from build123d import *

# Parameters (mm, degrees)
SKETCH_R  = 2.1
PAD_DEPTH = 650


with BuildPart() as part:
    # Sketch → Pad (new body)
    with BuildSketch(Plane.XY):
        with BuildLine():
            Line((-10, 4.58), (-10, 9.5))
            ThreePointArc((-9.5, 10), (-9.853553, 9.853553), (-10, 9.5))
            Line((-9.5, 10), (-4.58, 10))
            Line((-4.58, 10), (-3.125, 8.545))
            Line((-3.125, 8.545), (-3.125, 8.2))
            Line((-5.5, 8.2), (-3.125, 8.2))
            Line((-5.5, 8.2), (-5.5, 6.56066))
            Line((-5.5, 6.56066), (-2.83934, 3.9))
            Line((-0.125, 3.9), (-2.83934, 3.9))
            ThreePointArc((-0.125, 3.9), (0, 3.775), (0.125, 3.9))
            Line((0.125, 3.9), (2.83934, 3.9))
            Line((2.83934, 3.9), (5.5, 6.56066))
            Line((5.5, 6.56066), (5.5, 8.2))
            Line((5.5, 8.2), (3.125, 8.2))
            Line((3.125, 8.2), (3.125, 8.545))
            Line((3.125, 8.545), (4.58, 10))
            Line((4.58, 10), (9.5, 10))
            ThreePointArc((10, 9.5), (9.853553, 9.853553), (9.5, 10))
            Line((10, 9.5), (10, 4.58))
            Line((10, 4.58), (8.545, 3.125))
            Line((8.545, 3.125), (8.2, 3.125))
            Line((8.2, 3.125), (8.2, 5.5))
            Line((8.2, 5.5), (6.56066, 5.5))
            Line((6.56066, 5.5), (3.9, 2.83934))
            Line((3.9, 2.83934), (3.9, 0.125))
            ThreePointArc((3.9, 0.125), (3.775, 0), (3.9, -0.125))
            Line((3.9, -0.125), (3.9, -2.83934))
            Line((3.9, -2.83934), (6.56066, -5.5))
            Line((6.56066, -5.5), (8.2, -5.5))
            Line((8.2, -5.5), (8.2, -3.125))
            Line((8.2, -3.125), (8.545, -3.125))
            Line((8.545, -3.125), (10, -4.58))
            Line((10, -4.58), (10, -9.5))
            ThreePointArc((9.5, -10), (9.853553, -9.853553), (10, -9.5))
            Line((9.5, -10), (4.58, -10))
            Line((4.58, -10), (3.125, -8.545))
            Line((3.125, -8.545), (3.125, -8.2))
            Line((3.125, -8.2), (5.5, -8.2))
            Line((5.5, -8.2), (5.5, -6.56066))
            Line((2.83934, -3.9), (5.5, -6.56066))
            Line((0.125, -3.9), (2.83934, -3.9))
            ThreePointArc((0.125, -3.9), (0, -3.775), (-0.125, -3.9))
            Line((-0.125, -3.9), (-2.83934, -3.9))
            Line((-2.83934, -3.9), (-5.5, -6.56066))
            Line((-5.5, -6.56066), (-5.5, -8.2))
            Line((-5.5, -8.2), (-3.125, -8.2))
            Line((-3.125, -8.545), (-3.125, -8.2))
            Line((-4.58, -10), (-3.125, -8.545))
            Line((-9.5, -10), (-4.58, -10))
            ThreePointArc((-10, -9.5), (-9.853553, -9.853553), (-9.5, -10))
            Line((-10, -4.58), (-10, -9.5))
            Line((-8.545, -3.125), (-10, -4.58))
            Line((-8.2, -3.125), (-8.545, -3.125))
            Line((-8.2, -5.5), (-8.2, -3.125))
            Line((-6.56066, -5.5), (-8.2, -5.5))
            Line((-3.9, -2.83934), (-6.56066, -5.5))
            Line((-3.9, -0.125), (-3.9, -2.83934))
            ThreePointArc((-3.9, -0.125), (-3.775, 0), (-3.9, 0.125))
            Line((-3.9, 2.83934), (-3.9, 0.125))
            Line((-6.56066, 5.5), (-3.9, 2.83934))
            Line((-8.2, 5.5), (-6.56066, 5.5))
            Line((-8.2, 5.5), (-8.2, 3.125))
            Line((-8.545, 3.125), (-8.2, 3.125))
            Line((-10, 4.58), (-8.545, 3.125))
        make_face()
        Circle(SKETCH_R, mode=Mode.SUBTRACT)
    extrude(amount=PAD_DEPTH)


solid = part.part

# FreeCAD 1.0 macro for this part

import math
import FreeCAD as App
import Part
import Sketcher

V = App.Vector

doc = App.newDocument("Part")
body = doc.addObject("PartDesign::Body", "Body")

# Sketch on XY plane
sketch1 = body.newObject("Sketcher::SketchObject", "Sketch")
sketch1.AttachmentSupport = (doc.getObject("XY_Plane"), [""])
sketch1.MapMode = "FlatFace"
sketch1.addGeometry(Part.LineSegment(V(-10, 9.5, 0), V(-10, 4.58, 0)), False)
sketch1.addGeometry(Part.LineSegment(V(-10, 4.58, 0), V(-8.54, 3.12, 0)), False)
sketch1.addGeometry(Part.LineSegment(V(-8.54, 3.12, 0), V(-8.2, 3.12, 0)), False)
sketch1.addGeometry(Part.LineSegment(V(-8.2, 3.12, 0), V(-8.2, 5.5, 0)), False)
sketch1.addGeometry(Part.LineSegment(V(-8.2, 5.5, 0), V(-6.56, 5.5, 0)), False)
sketch1.addGeometry(Part.LineSegment(V(-6.56, 5.5, 0), V(-3.9, 2.84, 0)), False)
sketch1.addGeometry(Part.LineSegment(V(-3.9, 2.84, 0), V(-3.9, 0.12, 0)), False)
sketch1.addGeometry(Part.ArcOfCircle(Part.Circle(V(-3.9, 0, 0), V(0, 0, 1), 0.12), math.radians(-90), math.radians(90)), False)
sketch1.addGeometry(Part.LineSegment(V(-3.9, -0.12, 0), V(-3.9, -2.84, 0)), False)
sketch1.addGeometry(Part.LineSegment(V(-3.9, -2.84, 0), V(-6.56, -5.5, 0)), False)
sketch1.addGeometry(Part.LineSegment(V(-6.56, -5.5, 0), V(-8.2, -5.5, 0)), False)
sketch1.addGeometry(Part.LineSegment(V(-8.2, -5.5, 0), V(-8.2, -3.12, 0)), False)
sketch1.addGeometry(Part.LineSegment(V(-8.2, -3.12, 0), V(-8.54, -3.12, 0)), False)
sketch1.addGeometry(Part.LineSegment(V(-8.54, -3.12, 0), V(-10, -4.58, 0)), False)
sketch1.addGeometry(Part.LineSegment(V(-10, -4.58, 0), V(-10, -9.5, 0)), False)
sketch1.addGeometry(Part.ArcOfCircle(Part.Circle(V(-9.5, -9.5, 0), V(0, 0, 1), 0.5), math.radians(-180), math.radians(-90)), False)
sketch1.addGeometry(Part.LineSegment(V(-9.5, -10, 0), V(-4.58, -10, 0)), False)
sketch1.addGeometry(Part.LineSegment(V(-4.58, -10, 0), V(-3.12, -8.54, 0)), False)
sketch1.addGeometry(Part.LineSegment(V(-3.12, -8.54, 0), V(-3.12, -8.2, 0)), False)
sketch1.addGeometry(Part.LineSegment(V(-3.12, -8.2, 0), V(-5.5, -8.2, 0)), False)
sketch1.addGeometry(Part.LineSegment(V(-5.5, -8.2, 0), V(-5.5, -6.56, 0)), False)
sketch1.addGeometry(Part.LineSegment(V(-5.5, -6.56, 0), V(-2.84, -3.9, 0)), False)
sketch1.addGeometry(Part.LineSegment(V(-2.84, -3.9, 0), V(-0.12, -3.9, 0)), False)
sketch1.addGeometry(Part.ArcOfCircle(Part.Circle(V(0, -3.9, 0), V(0, 0, 1), 0.12), math.radians(0), math.radians(180)), False)
sketch1.addGeometry(Part.LineSegment(V(0.12, -3.9, 0), V(2.84, -3.9, 0)), False)
sketch1.addGeometry(Part.LineSegment(V(2.84, -3.9, 0), V(5.5, -6.56, 0)), False)
sketch1.addGeometry(Part.LineSegment(V(5.5, -6.56, 0), V(5.5, -8.2, 0)), False)
sketch1.addGeometry(Part.LineSegment(V(5.5, -8.2, 0), V(3.12, -8.2, 0)), False)
sketch1.addGeometry(Part.LineSegment(V(3.12, -8.2, 0), V(3.12, -8.54, 0)), False)
sketch1.addGeometry(Part.LineSegment(V(3.12, -8.54, 0), V(4.58, -10, 0)), False)
sketch1.addGeometry(Part.LineSegment(V(4.58, -10, 0), V(9.5, -10, 0)), False)
sketch1.addGeometry(Part.ArcOfCircle(Part.Circle(V(9.5, -9.5, 0), V(0, 0, 1), 0.5), math.radians(-90), math.radians(0)), False)
sketch1.addGeometry(Part.LineSegment(V(10, -9.5, 0), V(10, -4.58, 0)), False)
sketch1.addGeometry(Part.LineSegment(V(10, -4.58, 0), V(8.54, -3.12, 0)), False)
sketch1.addGeometry(Part.LineSegment(V(8.54, -3.12, 0), V(8.2, -3.12, 0)), False)
sketch1.addGeometry(Part.LineSegment(V(8.2, -3.12, 0), V(8.2, -5.5, 0)), False)
sketch1.addGeometry(Part.LineSegment(V(8.2, -5.5, 0), V(6.56, -5.5, 0)), False)
sketch1.addGeometry(Part.LineSegment(V(6.56, -5.5, 0), V(3.9, -2.84, 0)), False)
sketch1.addGeometry(Part.LineSegment(V(3.9, -2.84, 0), V(3.9, -0.12, 0)), False)
sketch1.addGeometry(Part.ArcOfCircle(Part.Circle(V(3.9, 0, 0), V(0, 0, 1), 0.12), math.radians(90), math.radians(270)), False)
sketch1.addGeometry(Part.LineSegment(V(3.9, 0.12, 0), V(3.9, 2.84, 0)), False)
sketch1.addGeometry(Part.LineSegment(V(3.9, 2.84, 0), V(6.56, 5.5, 0)), False)
sketch1.addGeometry(Part.LineSegment(V(6.56, 5.5, 0), V(8.2, 5.5, 0)), False)
sketch1.addGeometry(Part.LineSegment(V(8.2, 5.5, 0), V(8.2, 3.12, 0)), False)
sketch1.addGeometry(Part.LineSegment(V(8.2, 3.12, 0), V(8.54, 3.12, 0)), False)
sketch1.addGeometry(Part.LineSegment(V(8.54, 3.12, 0), V(10, 4.58, 0)), False)
sketch1.addGeometry(Part.LineSegment(V(10, 4.58, 0), V(10, 9.5, 0)), False)
sketch1.addGeometry(Part.ArcOfCircle(Part.Circle(V(9.5, 9.5, 0), V(0, 0, 1), 0.5), math.radians(0), math.radians(90)), False)
sketch1.addGeometry(Part.LineSegment(V(9.5, 10, 0), V(4.58, 10, 0)), False)
sketch1.addGeometry(Part.LineSegment(V(4.58, 10, 0), V(3.12, 8.54, 0)), False)
sketch1.addGeometry(Part.LineSegment(V(3.12, 8.54, 0), V(3.12, 8.2, 0)), False)
sketch1.addGeometry(Part.LineSegment(V(3.12, 8.2, 0), V(5.5, 8.2, 0)), False)
sketch1.addGeometry(Part.LineSegment(V(5.5, 8.2, 0), V(5.5, 6.56, 0)), False)
sketch1.addGeometry(Part.LineSegment(V(5.5, 6.56, 0), V(2.84, 3.9, 0)), False)
sketch1.addGeometry(Part.LineSegment(V(2.84, 3.9, 0), V(0.12, 3.9, 0)), False)
sketch1.addGeometry(Part.ArcOfCircle(Part.Circle(V(0, 3.9, 0), V(0, 0, 1), 0.12), math.radians(180), math.radians(360)), False)
sketch1.addGeometry(Part.LineSegment(V(-0.12, 3.9, 0), V(-2.84, 3.9, 0)), False)
sketch1.addGeometry(Part.LineSegment(V(-2.84, 3.9, 0), V(-5.5, 6.56, 0)), False)
sketch1.addGeometry(Part.LineSegment(V(-5.5, 6.56, 0), V(-5.5, 8.2, 0)), False)
sketch1.addGeometry(Part.LineSegment(V(-5.5, 8.2, 0), V(-3.12, 8.2, 0)), False)
sketch1.addGeometry(Part.LineSegment(V(-3.12, 8.2, 0), V(-3.12, 8.54, 0)), False)
sketch1.addGeometry(Part.LineSegment(V(-3.12, 8.54, 0), V(-4.58, 10, 0)), False)
sketch1.addGeometry(Part.LineSegment(V(-4.58, 10, 0), V(-9.5, 10, 0)), False)
sketch1.addGeometry(Part.ArcOfCircle(Part.Circle(V(-9.5, 9.5, 0), V(0, 0, 1), 0.5), math.radians(90), math.radians(180)), False)
sketch1.addGeometry(Part.Circle(V(0, 0, 0), V(0, 0, 1), 2.1), False)
sketch1.addConstraint(Sketcher.Constraint("Coincident", 0, 2, 1, 1))
sketch1.addConstraint(Sketcher.Constraint("Coincident", 1, 2, 2, 1))
sketch1.addConstraint(Sketcher.Constraint("Coincident", 2, 2, 3, 1))
sketch1.addConstraint(Sketcher.Constraint("Coincident", 3, 2, 4, 1))
sketch1.addConstraint(Sketcher.Constraint("Coincident", 4, 2, 5, 1))
sketch1.addConstraint(Sketcher.Constraint("Coincident", 5, 2, 6, 1))
sketch1.addConstraint(Sketcher.Constraint("Coincident", 6, 2, 7, 2))
sketch1.addConstraint(Sketcher.Constraint("Coincident", 7, 1, 8, 1))
sketch1.addConstraint(Sketcher.Constraint("Coincident", 8, 2, 9, 1))
sketch1.addConstraint(Sketcher.Constraint("Coincident", 9, 2, 10, 1))
sketch1.addConstraint(Sketcher.Constraint("Coincident", 10, 2, 11, 1))
sketch1.addConstraint(Sketcher.Constraint("Coincident", 11, 2, 12, 1))
sketch1.addConstraint(Sketcher.Constraint("Coincident", 12, 2, 13, 1))
sketch1.addConstraint(Sketcher.Constraint("Coincident", 13, 2, 14, 1))
sketch1.addConstraint(Sketcher.Constraint("Coincident", 14, 2, 15, 1))
sketch1.addConstraint(Sketcher.Constraint("Coincident", 15, 2, 16, 1))
sketch1.addConstraint(Sketcher.Constraint("Coincident", 16, 2, 17, 1))
sketch1.addConstraint(Sketcher.Constraint("Coincident", 17, 2, 18, 1))
sketch1.addConstraint(Sketcher.Constraint("Coincident", 18, 2, 19, 1))
sketch1.addConstraint(Sketcher.Constraint("Coincident", 19, 2, 20, 1))
sketch1.addConstraint(Sketcher.Constraint("Coincident", 20, 2, 21, 1))
sketch1.addConstraint(Sketcher.Constraint("Coincident", 21, 2, 22, 1))
sketch1.addConstraint(Sketcher.Constraint("Coincident", 22, 2, 23, 2))
sketch1.addConstraint(Sketcher.Constraint("Coincident", 23, 1, 24, 1))
sketch1.addConstraint(Sketcher.Constraint("Coincident", 24, 2, 25, 1))
sketch1.addConstraint(Sketcher.Constraint("Coincident", 25, 2, 26, 1))
sketch1.addConstraint(Sketcher.Constraint("Coincident", 26, 2, 27, 1))
sketch1.addConstraint(Sketcher.Constraint("Coincident", 27, 2, 28, 1))
sketch1.addConstraint(Sketcher.Constraint("Coincident", 28, 2, 29, 1))
sketch1.addConstraint(Sketcher.Constraint("Coincident", 29, 2, 30, 1))
sketch1.addConstraint(Sketcher.Constraint("Coincident", 30, 2, 31, 1))
sketch1.addConstraint(Sketcher.Constraint("Coincident", 31, 2, 32, 1))
sketch1.addConstraint(Sketcher.Constraint("Coincident", 32, 2, 33, 1))
sketch1.addConstraint(Sketcher.Constraint("Coincident", 33, 2, 34, 1))
sketch1.addConstraint(Sketcher.Constraint("Coincident", 34, 2, 35, 1))
sketch1.addConstraint(Sketcher.Constraint("Coincident", 35, 2, 36, 1))
sketch1.addConstraint(Sketcher.Constraint("Coincident", 36, 2, 37, 1))
sketch1.addConstraint(Sketcher.Constraint("Coincident", 37, 2, 38, 1))
sketch1.addConstraint(Sketcher.Constraint("Coincident", 38, 2, 39, 2))
sketch1.addConstraint(Sketcher.Constraint("Coincident", 39, 1, 40, 1))
sketch1.addConstraint(Sketcher.Constraint("Coincident", 40, 2, 41, 1))
sketch1.addConstraint(Sketcher.Constraint("Coincident", 41, 2, 42, 1))
sketch1.addConstraint(Sketcher.Constraint("Coincident", 42, 2, 43, 1))
sketch1.addConstraint(Sketcher.Constraint("Coincident", 43, 2, 44, 1))
sketch1.addConstraint(Sketcher.Constraint("Coincident", 44, 2, 45, 1))
sketch1.addConstraint(Sketcher.Constraint("Coincident", 45, 2, 46, 1))
sketch1.addConstraint(Sketcher.Constraint("Coincident", 46, 2, 47, 1))
sketch1.addConstraint(Sketcher.Constraint("Coincident", 47, 2, 48, 1))
sketch1.addConstraint(Sketcher.Constraint("Coincident", 48, 2, 49, 1))
sketch1.addConstraint(Sketcher.Constraint("Coincident", 49, 2, 50, 1))
sketch1.addConstraint(Sketcher.Constraint("Coincident", 50, 2, 51, 1))
sketch1.addConstraint(Sketcher.Constraint("Coincident", 51, 2, 52, 1))
sketch1.addConstraint(Sketcher.Constraint("Coincident", 52, 2, 53, 1))
sketch1.addConstraint(Sketcher.Constraint("Coincident", 53, 2, 54, 1))
sketch1.addConstraint(Sketcher.Constraint("Coincident", 54, 2, 55, 2))
sketch1.addConstraint(Sketcher.Constraint("Coincident", 55, 1, 56, 1))
sketch1.addConstraint(Sketcher.Constraint("Coincident", 56, 2, 57, 1))
sketch1.addConstraint(Sketcher.Constraint("Coincident", 57, 2, 58, 1))
sketch1.addConstraint(Sketcher.Constraint("Coincident", 58, 2, 59, 1))
sketch1.addConstraint(Sketcher.Constraint("Coincident", 59, 2, 60, 1))
sketch1.addConstraint(Sketcher.Constraint("Coincident", 60, 2, 61, 1))
sketch1.addConstraint(Sketcher.Constraint("Coincident", 61, 2, 62, 1))
sketch1.addConstraint(Sketcher.Constraint("Coincident", 62, 2, 63, 1))
sketch1.addConstraint(Sketcher.Constraint("Coincident", 63, 2, 0, 1))
sketch1.addConstraint(Sketcher.Constraint("Vertical", 0))
sketch1.addConstraint(Sketcher.Constraint("Horizontal", 2))
sketch1.addConstraint(Sketcher.Constraint("Vertical", 3))
sketch1.addConstraint(Sketcher.Constraint("Horizontal", 4))
sketch1.addConstraint(Sketcher.Constraint("Vertical", 6))
sketch1.addConstraint(Sketcher.Constraint("Vertical", 8))
sketch1.addConstraint(Sketcher.Constraint("Horizontal", 10))
sketch1.addConstraint(Sketcher.Constraint("Vertical", 11))
sketch1.addConstraint(Sketcher.Constraint("Horizontal", 12))
sketch1.addConstraint(Sketcher.Constraint("Vertical", 14))
sketch1.addConstraint(Sketcher.Constraint("Horizontal", 16))
sketch1.addConstraint(Sketcher.Constraint("Vertical", 18))
sketch1.addConstraint(Sketcher.Constraint("Horizontal", 19))
sketch1.addConstraint(Sketcher.Constraint("Vertical", 20))
sketch1.addConstraint(Sketcher.Constraint("Horizontal", 22))
sketch1.addConstraint(Sketcher.Constraint("Horizontal", 24))
sketch1.addConstraint(Sketcher.Constraint("Vertical", 26))
sketch1.addConstraint(Sketcher.Constraint("Horizontal", 27))
sketch1.addConstraint(Sketcher.Constraint("Vertical", 28))
sketch1.addConstraint(Sketcher.Constraint("Horizontal", 30))
sketch1.addConstraint(Sketcher.Constraint("Vertical", 32))
sketch1.addConstraint(Sketcher.Constraint("Horizontal", 34))
sketch1.addConstraint(Sketcher.Constraint("Vertical", 35))
sketch1.addConstraint(Sketcher.Constraint("Horizontal", 36))
sketch1.addConstraint(Sketcher.Constraint("Vertical", 38))
sketch1.addConstraint(Sketcher.Constraint("Vertical", 40))
sketch1.addConstraint(Sketcher.Constraint("Horizontal", 42))
sketch1.addConstraint(Sketcher.Constraint("Vertical", 43))
sketch1.addConstraint(Sketcher.Constraint("Horizontal", 44))
sketch1.addConstraint(Sketcher.Constraint("Vertical", 46))
sketch1.addConstraint(Sketcher.Constraint("Horizontal", 48))
sketch1.addConstraint(Sketcher.Constraint("Vertical", 50))
sketch1.addConstraint(Sketcher.Constraint("Horizontal", 51))
sketch1.addConstraint(Sketcher.Constraint("Vertical", 52))
sketch1.addConstraint(Sketcher.Constraint("Horizontal", 54))
sketch1.addConstraint(Sketcher.Constraint("Horizontal", 56))
sketch1.addConstraint(Sketcher.Constraint("Vertical", 58))
sketch1.addConstraint(Sketcher.Constraint("Horizontal", 59))
sketch1.addConstraint(Sketcher.Constraint("Vertical", 60))
sketch1.addConstraint(Sketcher.Constraint("Horizontal", 62))
sketch1.addConstraint(Sketcher.Constraint("Coincident", 64, 3, -1, 1))
sketch1.addConstraint(Sketcher.Constraint("Equal", 7, 23))
sketch1.addConstraint(Sketcher.Constraint("Equal", 15, 31))
sketch1.addConstraint(Sketcher.Constraint("Equal", 23, 39))
sketch1.addConstraint(Sketcher.Constraint("Equal", 31, 47))
sketch1.addConstraint(Sketcher.Constraint("Equal", 39, 55))
sketch1.addConstraint(Sketcher.Constraint("Equal", 47, 63))
sketch1.addConstraint(Sketcher.Constraint("Symmetric", 7, 3, 39, 3, -1, 1))
sketch1.addConstraint(Sketcher.Constraint("Symmetric", 15, 3, 47, 3, -1, 1))
sketch1.addConstraint(Sketcher.Constraint("Symmetric", 23, 3, 55, 3, -1, 1))
sketch1.addConstraint(Sketcher.Constraint("Symmetric", 31, 3, 63, 3, -1, 1))
sketch1.addConstraint(Sketcher.Constraint("Symmetric", 1, 2, 33, 2, -1, 1))
sketch1.addConstraint(Sketcher.Constraint("Symmetric", 3, 2, 35, 2, -1, 1))
sketch1.addConstraint(Sketcher.Constraint("Symmetric", 5, 2, 37, 2, -1, 1))
sketch1.addConstraint(Sketcher.Constraint("Symmetric", 8, 2, 40, 2, -1, 1))
sketch1.addConstraint(Sketcher.Constraint("Symmetric", 9, 2, 41, 2, -1, 1))
sketch1.addConstraint(Sketcher.Constraint("Symmetric", 11, 2, 43, 2, -1, 1))
sketch1.addConstraint(Sketcher.Constraint("Symmetric", 17, 2, 49, 2, -1, 1))
sketch1.addConstraint(Sketcher.Constraint("Symmetric", 19, 2, 51, 2, -1, 1))
sketch1.addConstraint(Sketcher.Constraint("Symmetric", 21, 2, 53, 2, -1, 1))
sketch1.addConstraint(Sketcher.Constraint("Symmetric", 24, 2, 56, 2, -1, 1))
sketch1.addConstraint(Sketcher.Constraint("Symmetric", 25, 2, 57, 2, -1, 1))
sketch1.addConstraint(Sketcher.Constraint("Symmetric", 27, 2, 59, 2, -1, 1))
sketch1.addConstraint(Sketcher.Constraint("Symmetric", 15, 3, 31, 3, -2))
sketch1.addConstraint(Sketcher.Constraint("Symmetric", 22, 2, 23, 1, -2))
sketch1.addConstraint(Sketcher.Constraint("Symmetric", 20, 2, 25, 2, -2))
sketch1.addConstraint(Sketcher.Constraint("Symmetric", 18, 2, 27, 2, -2))
sketch1.addConstraint(Sketcher.Constraint("Symmetric", 12, 2, 33, 2, -2))
sketch1.addConstraint(Sketcher.Constraint("Symmetric", 10, 2, 35, 2, -2))
sketch1.addConstraint(Sketcher.Constraint("Symmetric", 8, 2, 37, 2, -2))
sketch1.addConstraint(Sketcher.Constraint("PointOnObject", 7, 3, -1))
sketch1.addConstraint(Sketcher.Constraint("Parallel", 1, 5))
sketch1.addConstraint(Sketcher.Constraint("Perpendicular", 5, 9))
sketch1.addConstraint(Sketcher.Constraint("Parallel", 9, 13))
sketch1.addConstraint(Sketcher.Constraint("Parallel", 13, 17))
sketch1.addConstraint(Sketcher.Constraint("Parallel", 17, 21))
sketch1.addConstraint(Sketcher.Constraint("Perpendicular", 21, 25))
sketch1.addConstraint(Sketcher.Constraint("Parallel", 25, 29))
sketch1.addConstraint(Sketcher.Constraint("Parallel", 29, 33))
sketch1.addConstraint(Sketcher.Constraint("Parallel", 33, 37))
sketch1.addConstraint(Sketcher.Constraint("Parallel", 41, 45))
sketch1.addConstraint(Sketcher.Constraint("Parallel", 45, 49))
sketch1.addConstraint(Sketcher.Constraint("Parallel", 49, 53))
sketch1.addConstraint(Sketcher.Constraint("Parallel", 57, 61))
sketch1.addConstraint(Sketcher.Constraint("Horizontal", 31, 3, 14, 2))
sketch1.addConstraint(Sketcher.Constraint("Horizontal", 23, 3, 21, 2))
sketch1.addConstraint(Sketcher.Constraint("Horizontal", 17, 2, 28, 2))
sketch1.addConstraint(Sketcher.Constraint("Horizontal", 14, 2, 31, 2))
sketch1.addConstraint(Sketcher.Constraint("Horizontal", 13, 2, 32, 2))
sketch1.addConstraint(Sketcher.Constraint("Horizontal", 0, 2, 45, 2))
sketch1.addConstraint(Sketcher.Constraint("Horizontal", 63, 3, 46, 2))
sketch1.addConstraint(Sketcher.Constraint("Horizontal", 49, 2, 60, 2))
sketch1.addConstraint(Sketcher.Constraint("Horizontal", 46, 2, 63, 2))
sketch1.addConstraint(Sketcher.Constraint("Vertical", 7, 3, 5, 2))
sketch1.addConstraint(Sketcher.Constraint("Vertical", 63, 3, 15, 2))
sketch1.addConstraint(Sketcher.Constraint("Vertical", 47, 3, 30, 2))
sketch1.addConstraint(Sketcher.Constraint("Vertical", 30, 2, 47, 2))
sketch1.addConstraint(Sketcher.Constraint("Vertical", 15, 2, 62, 2))
sketch1.addConstraint(Sketcher.Constraint("Equal", 62, 0))
sketch1.addConstraint(Sketcher.Constraint("Equal", 59, 3))
sketch1.addConstraint(Sketcher.Constraint("Equal", 56, 6))
sketch1.addConstraint(Sketcher.Constraint("Equal", 44, 18))
sketch1.addConstraint(Sketcher.Constraint("Equal", 42, 20))
sketch1.addConstraint(Sketcher.Constraint("Equal", 13, 17))
sketch1.addConstraint(Sketcher.Constraint("Equal", 9, 21))
sketch1.addConstraint(Sketcher.Constraint("Diameter", 64, 4.2))
sketch1.addConstraint(Sketcher.Constraint("Radius", 15, 0.500001))
sketch1.addConstraint(Sketcher.Constraint("DistanceX", 0, 2, -1, 1, 10.0))
sketch1.addConstraint(Sketcher.Constraint("Radius", 7, 0.125))
sketch1.addConstraint(Sketcher.Constraint("DistanceX", 16, 1, 16, 2, 4.92))
sketch1.addConstraint(Sketcher.Constraint("DistanceX", 7, 3, -1, 1, 3.9))
sketch1.addConstraint(Sketcher.Constraint("DistanceX", 2, 2, -1, 1, 8.2))
sketch1.addConstraint(Sketcher.Constraint("DistanceY", -1, 1, 3, 2, 5.5))
sketch1.addConstraint(Sketcher.Constraint("DistanceX", 2, 1, 2, 2, 0.345))
sketch1.addConstraint(Sketcher.Constraint("DistanceX", 4, 1, 4, 2, 1.63934))
pad1 = body.newObject("PartDesign::Pad", "Pad")
pad1.Profile = sketch1
pad1.Length = 650

doc.recompute()
